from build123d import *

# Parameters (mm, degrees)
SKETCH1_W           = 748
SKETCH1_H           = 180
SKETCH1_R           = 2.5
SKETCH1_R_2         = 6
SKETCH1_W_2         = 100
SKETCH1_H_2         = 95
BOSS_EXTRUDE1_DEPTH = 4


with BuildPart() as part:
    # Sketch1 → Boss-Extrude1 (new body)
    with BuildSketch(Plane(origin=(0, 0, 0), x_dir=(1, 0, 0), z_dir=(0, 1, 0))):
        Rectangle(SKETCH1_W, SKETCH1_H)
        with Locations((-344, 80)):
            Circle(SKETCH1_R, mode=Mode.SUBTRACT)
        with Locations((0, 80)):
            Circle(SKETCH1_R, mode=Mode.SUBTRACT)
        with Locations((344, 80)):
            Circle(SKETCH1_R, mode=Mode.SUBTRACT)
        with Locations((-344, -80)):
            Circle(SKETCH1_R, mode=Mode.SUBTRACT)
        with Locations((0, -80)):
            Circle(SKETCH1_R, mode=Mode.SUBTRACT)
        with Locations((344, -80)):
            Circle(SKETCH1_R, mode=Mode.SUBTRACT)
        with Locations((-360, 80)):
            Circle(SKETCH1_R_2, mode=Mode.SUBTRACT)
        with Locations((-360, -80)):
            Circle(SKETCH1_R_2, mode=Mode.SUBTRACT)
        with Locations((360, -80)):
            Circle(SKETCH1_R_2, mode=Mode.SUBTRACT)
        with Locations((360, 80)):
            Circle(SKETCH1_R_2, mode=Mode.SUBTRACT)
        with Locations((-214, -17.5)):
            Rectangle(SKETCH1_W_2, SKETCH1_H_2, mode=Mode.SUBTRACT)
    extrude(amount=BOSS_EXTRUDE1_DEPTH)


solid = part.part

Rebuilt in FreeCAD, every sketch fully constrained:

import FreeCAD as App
import Part
import Sketcher
Q = App.Units.Quantity

doc = App.newDocument("Part")
params = doc.addObject("Spreadsheet::Sheet", "Params")
for row, (alias, value) in enumerate([
    ("sketch1_diameter", "12 mm"),
    ("sketch1_diameter2", "5 mm"),
    ("sketch1_width", "748 mm"),
    ("sketch1_width2", "100 mm"),
    ("sketch1_height", "180 mm"),
    ("pad1_length", "4 mm"),
], start=1):
    params.set(f"A{row}", alias)
    params.set(f"B{row}", "=" + value)
    params.setAlias(f"B{row}", alias)

body = doc.addObject("PartDesign::Body", "Body")

# Sketch on XZ plane
sketch1 = body.newObject("Sketcher::SketchObject", "Sketch")
sketch1.AttachmentSupport = (doc.getObject("XZ_Plane"), [""])
sketch1.MapMode = "FlatFace"
sketch1.addGeometry([
    Part.LineSegment(App.Vector(-374, -90, 0), App.Vector(-374, 90, 0)),  # 0
    Part.LineSegment(App.Vector(-374, 90, 0), App.Vector(374, 90, 0)),  # 1
    Part.LineSegment(App.Vector(374, 90, 0), App.Vector(374, -90, 0)),  # 2
    Part.LineSegment(App.Vector(374, -90, 0), App.Vector(-374, -90, 0)),  # 3
    Part.Circle(App.Vector(-360, 80, 0), App.Vector(0, 0, 1), 6),  # 4
    Part.Circle(App.Vector(-344, 80, 0), App.Vector(0, 0, 1), 2.5),  # 5
    Part.LineSegment(App.Vector(-164, 65, 0), App.Vector(-264, 65, 0)),  # 6
    Part.LineSegment(App.Vector(-264, 65, 0), App.Vector(-264, -30, 0)),  # 7
    Part.LineSegment(App.Vector(-264, -30, 0), App.Vector(-164, -30, 0)),  # 8
    Part.LineSegment(App.Vector(-164, -30, 0), App.Vector(-164, 65, 0)),  # 9
    Part.Circle(App.Vector(0, 80, 0), App.Vector(0, 0, 1), 2.5),  # 10
    Part.Circle(App.Vector(344, 80, 0), App.Vector(0, 0, 1), 2.5),  # 11
    Part.Circle(App.Vector(360, 80, 0), App.Vector(0, 0, 1), 6),  # 12
    Part.Circle(App.Vector(-360, -80, 0), App.Vector(0, 0, 1), 6),  # 13
    Part.Circle(App.Vector(-344, -80, 0), App.Vector(0, 0, 1), 2.5),  # 14
    Part.Circle(App.Vector(0, -80, 0), App.Vector(0, 0, 1), 2.5),  # 15
    Part.Circle(App.Vector(344, -80, 0), App.Vector(0, 0, 1), 2.5),  # 16
    Part.Circle(App.Vector(360, -80, 0), App.Vector(0, 0, 1), 6),  # 17
], False)
sketch1.addConstraint([
    Sketcher.Constraint("Coincident", 0, 2, 1, 1),
    Sketcher.Constraint("Coincident", 1, 2, 2, 1),
    Sketcher.Constraint("Coincident", 2, 2, 3, 1),
    Sketcher.Constraint("Coincident", 3, 2, 0, 1),
    Sketcher.Constraint("Coincident", 6, 2, 7, 1),
    Sketcher.Constraint("Coincident", 7, 2, 8, 1),
    Sketcher.Constraint("Coincident", 8, 2, 9, 1),
    Sketcher.Constraint("Coincident", 9, 2, 6, 1),
    Sketcher.Constraint("Vertical", 0),
    Sketcher.Constraint("Horizontal", 1),
    Sketcher.Constraint("Vertical", 2),
    Sketcher.Constraint("Horizontal", 3),
    Sketcher.Constraint("Horizontal", 6),
    Sketcher.Constraint("Vertical", 7),
    Sketcher.Constraint("Horizontal", 8),
    Sketcher.Constraint("Vertical", 9),
    Sketcher.Constraint("Equal", 5, 10),
    Sketcher.Constraint("Equal", 10, 11),
    Sketcher.Constraint("Equal", 4, 12),
    Sketcher.Constraint("Equal", 12, 13),
    Sketcher.Constraint("Equal", 11, 14),
    Sketcher.Constraint("Equal", 14, 15),
    Sketcher.Constraint("Equal", 15, 16),
    Sketcher.Constraint("Equal", 13, 17),
    Sketcher.Constraint("Symmetric", 12, 3, 13, 3, -1, 1),
    Sketcher.Constraint("Symmetric", 11, 3, 14, 3, -1, 1),
    Sketcher.Constraint("Symmetric", 10, 3, 15, 3, -1, 1),
    Sketcher.Constraint("Symmetric", 5, 3, 16, 3, -1, 1),
    Sketcher.Constraint("Symmetric", 4, 3, 17, 3, -1, 1),
    Sketcher.Constraint("Symmetric", 0, 2, 2, 2, -1, 1),
    Sketcher.Constraint("Symmetric", 5, 3, 11, 3, -2),
    Sketcher.Constraint("Symmetric", 4, 3, 12, 3, -2),
    Sketcher.Constraint("PointOnObject", 10, 3, -2),
    Sketcher.Constraint("Horizontal", 4, 3, 5, 3),
    Sketcher.Constraint("Horizontal", 5, 3, 10, 3),
    Sketcher.Constraint("Diameter", 4, Q("12 mm")),
    Sketcher.Constraint("Diameter", 5, Q("5 mm")),
    Sketcher.Constraint("DistanceX", 1, 1, 1, 2, Q("748 mm")),
    Sketcher.Constraint("DistanceX", 6, 2, 6, 1, Q("100 mm")),
    Sketcher.Constraint("DistanceY", 0, 1, 0, 2, Q("180 mm")),
    Sketcher.Constraint("DistanceY", 7, 2, 7, 1, Q("95 mm")),
    Sketcher.Constraint("DistanceX", 4, 3, -1, 1, Q("360 mm")),
    Sketcher.Constraint("DistanceY", -1, 1, 4, 3, Q("80 mm")),
    Sketcher.Constraint("DistanceX", 5, 3, -1, 1, Q("344 mm")),
    Sketcher.Constraint("DistanceX", 6, 2, -1, 1, Q("264 mm")),
    Sketcher.Constraint("DistanceY", -1, 1, 6, 2, Q("65 mm")),
])
sketch1.setExpression("Constraints[35]", "Params.sketch1_diameter")
sketch1.setExpression("Constraints[36]", "Params.sketch1_diameter2")
sketch1.setExpression("Constraints[37]", "Params.sketch1_width")
sketch1.setExpression("Constraints[38]", "Params.sketch1_width2")
sketch1.setExpression("Constraints[39]", "Params.sketch1_height")
pad1 = body.newObject("PartDesign::Pad", "Pad")
pad1.Profile = sketch1
pad1.setExpression("Length", "Params.pad1_length")
pad1.Reversed = True

doc.recompute()
